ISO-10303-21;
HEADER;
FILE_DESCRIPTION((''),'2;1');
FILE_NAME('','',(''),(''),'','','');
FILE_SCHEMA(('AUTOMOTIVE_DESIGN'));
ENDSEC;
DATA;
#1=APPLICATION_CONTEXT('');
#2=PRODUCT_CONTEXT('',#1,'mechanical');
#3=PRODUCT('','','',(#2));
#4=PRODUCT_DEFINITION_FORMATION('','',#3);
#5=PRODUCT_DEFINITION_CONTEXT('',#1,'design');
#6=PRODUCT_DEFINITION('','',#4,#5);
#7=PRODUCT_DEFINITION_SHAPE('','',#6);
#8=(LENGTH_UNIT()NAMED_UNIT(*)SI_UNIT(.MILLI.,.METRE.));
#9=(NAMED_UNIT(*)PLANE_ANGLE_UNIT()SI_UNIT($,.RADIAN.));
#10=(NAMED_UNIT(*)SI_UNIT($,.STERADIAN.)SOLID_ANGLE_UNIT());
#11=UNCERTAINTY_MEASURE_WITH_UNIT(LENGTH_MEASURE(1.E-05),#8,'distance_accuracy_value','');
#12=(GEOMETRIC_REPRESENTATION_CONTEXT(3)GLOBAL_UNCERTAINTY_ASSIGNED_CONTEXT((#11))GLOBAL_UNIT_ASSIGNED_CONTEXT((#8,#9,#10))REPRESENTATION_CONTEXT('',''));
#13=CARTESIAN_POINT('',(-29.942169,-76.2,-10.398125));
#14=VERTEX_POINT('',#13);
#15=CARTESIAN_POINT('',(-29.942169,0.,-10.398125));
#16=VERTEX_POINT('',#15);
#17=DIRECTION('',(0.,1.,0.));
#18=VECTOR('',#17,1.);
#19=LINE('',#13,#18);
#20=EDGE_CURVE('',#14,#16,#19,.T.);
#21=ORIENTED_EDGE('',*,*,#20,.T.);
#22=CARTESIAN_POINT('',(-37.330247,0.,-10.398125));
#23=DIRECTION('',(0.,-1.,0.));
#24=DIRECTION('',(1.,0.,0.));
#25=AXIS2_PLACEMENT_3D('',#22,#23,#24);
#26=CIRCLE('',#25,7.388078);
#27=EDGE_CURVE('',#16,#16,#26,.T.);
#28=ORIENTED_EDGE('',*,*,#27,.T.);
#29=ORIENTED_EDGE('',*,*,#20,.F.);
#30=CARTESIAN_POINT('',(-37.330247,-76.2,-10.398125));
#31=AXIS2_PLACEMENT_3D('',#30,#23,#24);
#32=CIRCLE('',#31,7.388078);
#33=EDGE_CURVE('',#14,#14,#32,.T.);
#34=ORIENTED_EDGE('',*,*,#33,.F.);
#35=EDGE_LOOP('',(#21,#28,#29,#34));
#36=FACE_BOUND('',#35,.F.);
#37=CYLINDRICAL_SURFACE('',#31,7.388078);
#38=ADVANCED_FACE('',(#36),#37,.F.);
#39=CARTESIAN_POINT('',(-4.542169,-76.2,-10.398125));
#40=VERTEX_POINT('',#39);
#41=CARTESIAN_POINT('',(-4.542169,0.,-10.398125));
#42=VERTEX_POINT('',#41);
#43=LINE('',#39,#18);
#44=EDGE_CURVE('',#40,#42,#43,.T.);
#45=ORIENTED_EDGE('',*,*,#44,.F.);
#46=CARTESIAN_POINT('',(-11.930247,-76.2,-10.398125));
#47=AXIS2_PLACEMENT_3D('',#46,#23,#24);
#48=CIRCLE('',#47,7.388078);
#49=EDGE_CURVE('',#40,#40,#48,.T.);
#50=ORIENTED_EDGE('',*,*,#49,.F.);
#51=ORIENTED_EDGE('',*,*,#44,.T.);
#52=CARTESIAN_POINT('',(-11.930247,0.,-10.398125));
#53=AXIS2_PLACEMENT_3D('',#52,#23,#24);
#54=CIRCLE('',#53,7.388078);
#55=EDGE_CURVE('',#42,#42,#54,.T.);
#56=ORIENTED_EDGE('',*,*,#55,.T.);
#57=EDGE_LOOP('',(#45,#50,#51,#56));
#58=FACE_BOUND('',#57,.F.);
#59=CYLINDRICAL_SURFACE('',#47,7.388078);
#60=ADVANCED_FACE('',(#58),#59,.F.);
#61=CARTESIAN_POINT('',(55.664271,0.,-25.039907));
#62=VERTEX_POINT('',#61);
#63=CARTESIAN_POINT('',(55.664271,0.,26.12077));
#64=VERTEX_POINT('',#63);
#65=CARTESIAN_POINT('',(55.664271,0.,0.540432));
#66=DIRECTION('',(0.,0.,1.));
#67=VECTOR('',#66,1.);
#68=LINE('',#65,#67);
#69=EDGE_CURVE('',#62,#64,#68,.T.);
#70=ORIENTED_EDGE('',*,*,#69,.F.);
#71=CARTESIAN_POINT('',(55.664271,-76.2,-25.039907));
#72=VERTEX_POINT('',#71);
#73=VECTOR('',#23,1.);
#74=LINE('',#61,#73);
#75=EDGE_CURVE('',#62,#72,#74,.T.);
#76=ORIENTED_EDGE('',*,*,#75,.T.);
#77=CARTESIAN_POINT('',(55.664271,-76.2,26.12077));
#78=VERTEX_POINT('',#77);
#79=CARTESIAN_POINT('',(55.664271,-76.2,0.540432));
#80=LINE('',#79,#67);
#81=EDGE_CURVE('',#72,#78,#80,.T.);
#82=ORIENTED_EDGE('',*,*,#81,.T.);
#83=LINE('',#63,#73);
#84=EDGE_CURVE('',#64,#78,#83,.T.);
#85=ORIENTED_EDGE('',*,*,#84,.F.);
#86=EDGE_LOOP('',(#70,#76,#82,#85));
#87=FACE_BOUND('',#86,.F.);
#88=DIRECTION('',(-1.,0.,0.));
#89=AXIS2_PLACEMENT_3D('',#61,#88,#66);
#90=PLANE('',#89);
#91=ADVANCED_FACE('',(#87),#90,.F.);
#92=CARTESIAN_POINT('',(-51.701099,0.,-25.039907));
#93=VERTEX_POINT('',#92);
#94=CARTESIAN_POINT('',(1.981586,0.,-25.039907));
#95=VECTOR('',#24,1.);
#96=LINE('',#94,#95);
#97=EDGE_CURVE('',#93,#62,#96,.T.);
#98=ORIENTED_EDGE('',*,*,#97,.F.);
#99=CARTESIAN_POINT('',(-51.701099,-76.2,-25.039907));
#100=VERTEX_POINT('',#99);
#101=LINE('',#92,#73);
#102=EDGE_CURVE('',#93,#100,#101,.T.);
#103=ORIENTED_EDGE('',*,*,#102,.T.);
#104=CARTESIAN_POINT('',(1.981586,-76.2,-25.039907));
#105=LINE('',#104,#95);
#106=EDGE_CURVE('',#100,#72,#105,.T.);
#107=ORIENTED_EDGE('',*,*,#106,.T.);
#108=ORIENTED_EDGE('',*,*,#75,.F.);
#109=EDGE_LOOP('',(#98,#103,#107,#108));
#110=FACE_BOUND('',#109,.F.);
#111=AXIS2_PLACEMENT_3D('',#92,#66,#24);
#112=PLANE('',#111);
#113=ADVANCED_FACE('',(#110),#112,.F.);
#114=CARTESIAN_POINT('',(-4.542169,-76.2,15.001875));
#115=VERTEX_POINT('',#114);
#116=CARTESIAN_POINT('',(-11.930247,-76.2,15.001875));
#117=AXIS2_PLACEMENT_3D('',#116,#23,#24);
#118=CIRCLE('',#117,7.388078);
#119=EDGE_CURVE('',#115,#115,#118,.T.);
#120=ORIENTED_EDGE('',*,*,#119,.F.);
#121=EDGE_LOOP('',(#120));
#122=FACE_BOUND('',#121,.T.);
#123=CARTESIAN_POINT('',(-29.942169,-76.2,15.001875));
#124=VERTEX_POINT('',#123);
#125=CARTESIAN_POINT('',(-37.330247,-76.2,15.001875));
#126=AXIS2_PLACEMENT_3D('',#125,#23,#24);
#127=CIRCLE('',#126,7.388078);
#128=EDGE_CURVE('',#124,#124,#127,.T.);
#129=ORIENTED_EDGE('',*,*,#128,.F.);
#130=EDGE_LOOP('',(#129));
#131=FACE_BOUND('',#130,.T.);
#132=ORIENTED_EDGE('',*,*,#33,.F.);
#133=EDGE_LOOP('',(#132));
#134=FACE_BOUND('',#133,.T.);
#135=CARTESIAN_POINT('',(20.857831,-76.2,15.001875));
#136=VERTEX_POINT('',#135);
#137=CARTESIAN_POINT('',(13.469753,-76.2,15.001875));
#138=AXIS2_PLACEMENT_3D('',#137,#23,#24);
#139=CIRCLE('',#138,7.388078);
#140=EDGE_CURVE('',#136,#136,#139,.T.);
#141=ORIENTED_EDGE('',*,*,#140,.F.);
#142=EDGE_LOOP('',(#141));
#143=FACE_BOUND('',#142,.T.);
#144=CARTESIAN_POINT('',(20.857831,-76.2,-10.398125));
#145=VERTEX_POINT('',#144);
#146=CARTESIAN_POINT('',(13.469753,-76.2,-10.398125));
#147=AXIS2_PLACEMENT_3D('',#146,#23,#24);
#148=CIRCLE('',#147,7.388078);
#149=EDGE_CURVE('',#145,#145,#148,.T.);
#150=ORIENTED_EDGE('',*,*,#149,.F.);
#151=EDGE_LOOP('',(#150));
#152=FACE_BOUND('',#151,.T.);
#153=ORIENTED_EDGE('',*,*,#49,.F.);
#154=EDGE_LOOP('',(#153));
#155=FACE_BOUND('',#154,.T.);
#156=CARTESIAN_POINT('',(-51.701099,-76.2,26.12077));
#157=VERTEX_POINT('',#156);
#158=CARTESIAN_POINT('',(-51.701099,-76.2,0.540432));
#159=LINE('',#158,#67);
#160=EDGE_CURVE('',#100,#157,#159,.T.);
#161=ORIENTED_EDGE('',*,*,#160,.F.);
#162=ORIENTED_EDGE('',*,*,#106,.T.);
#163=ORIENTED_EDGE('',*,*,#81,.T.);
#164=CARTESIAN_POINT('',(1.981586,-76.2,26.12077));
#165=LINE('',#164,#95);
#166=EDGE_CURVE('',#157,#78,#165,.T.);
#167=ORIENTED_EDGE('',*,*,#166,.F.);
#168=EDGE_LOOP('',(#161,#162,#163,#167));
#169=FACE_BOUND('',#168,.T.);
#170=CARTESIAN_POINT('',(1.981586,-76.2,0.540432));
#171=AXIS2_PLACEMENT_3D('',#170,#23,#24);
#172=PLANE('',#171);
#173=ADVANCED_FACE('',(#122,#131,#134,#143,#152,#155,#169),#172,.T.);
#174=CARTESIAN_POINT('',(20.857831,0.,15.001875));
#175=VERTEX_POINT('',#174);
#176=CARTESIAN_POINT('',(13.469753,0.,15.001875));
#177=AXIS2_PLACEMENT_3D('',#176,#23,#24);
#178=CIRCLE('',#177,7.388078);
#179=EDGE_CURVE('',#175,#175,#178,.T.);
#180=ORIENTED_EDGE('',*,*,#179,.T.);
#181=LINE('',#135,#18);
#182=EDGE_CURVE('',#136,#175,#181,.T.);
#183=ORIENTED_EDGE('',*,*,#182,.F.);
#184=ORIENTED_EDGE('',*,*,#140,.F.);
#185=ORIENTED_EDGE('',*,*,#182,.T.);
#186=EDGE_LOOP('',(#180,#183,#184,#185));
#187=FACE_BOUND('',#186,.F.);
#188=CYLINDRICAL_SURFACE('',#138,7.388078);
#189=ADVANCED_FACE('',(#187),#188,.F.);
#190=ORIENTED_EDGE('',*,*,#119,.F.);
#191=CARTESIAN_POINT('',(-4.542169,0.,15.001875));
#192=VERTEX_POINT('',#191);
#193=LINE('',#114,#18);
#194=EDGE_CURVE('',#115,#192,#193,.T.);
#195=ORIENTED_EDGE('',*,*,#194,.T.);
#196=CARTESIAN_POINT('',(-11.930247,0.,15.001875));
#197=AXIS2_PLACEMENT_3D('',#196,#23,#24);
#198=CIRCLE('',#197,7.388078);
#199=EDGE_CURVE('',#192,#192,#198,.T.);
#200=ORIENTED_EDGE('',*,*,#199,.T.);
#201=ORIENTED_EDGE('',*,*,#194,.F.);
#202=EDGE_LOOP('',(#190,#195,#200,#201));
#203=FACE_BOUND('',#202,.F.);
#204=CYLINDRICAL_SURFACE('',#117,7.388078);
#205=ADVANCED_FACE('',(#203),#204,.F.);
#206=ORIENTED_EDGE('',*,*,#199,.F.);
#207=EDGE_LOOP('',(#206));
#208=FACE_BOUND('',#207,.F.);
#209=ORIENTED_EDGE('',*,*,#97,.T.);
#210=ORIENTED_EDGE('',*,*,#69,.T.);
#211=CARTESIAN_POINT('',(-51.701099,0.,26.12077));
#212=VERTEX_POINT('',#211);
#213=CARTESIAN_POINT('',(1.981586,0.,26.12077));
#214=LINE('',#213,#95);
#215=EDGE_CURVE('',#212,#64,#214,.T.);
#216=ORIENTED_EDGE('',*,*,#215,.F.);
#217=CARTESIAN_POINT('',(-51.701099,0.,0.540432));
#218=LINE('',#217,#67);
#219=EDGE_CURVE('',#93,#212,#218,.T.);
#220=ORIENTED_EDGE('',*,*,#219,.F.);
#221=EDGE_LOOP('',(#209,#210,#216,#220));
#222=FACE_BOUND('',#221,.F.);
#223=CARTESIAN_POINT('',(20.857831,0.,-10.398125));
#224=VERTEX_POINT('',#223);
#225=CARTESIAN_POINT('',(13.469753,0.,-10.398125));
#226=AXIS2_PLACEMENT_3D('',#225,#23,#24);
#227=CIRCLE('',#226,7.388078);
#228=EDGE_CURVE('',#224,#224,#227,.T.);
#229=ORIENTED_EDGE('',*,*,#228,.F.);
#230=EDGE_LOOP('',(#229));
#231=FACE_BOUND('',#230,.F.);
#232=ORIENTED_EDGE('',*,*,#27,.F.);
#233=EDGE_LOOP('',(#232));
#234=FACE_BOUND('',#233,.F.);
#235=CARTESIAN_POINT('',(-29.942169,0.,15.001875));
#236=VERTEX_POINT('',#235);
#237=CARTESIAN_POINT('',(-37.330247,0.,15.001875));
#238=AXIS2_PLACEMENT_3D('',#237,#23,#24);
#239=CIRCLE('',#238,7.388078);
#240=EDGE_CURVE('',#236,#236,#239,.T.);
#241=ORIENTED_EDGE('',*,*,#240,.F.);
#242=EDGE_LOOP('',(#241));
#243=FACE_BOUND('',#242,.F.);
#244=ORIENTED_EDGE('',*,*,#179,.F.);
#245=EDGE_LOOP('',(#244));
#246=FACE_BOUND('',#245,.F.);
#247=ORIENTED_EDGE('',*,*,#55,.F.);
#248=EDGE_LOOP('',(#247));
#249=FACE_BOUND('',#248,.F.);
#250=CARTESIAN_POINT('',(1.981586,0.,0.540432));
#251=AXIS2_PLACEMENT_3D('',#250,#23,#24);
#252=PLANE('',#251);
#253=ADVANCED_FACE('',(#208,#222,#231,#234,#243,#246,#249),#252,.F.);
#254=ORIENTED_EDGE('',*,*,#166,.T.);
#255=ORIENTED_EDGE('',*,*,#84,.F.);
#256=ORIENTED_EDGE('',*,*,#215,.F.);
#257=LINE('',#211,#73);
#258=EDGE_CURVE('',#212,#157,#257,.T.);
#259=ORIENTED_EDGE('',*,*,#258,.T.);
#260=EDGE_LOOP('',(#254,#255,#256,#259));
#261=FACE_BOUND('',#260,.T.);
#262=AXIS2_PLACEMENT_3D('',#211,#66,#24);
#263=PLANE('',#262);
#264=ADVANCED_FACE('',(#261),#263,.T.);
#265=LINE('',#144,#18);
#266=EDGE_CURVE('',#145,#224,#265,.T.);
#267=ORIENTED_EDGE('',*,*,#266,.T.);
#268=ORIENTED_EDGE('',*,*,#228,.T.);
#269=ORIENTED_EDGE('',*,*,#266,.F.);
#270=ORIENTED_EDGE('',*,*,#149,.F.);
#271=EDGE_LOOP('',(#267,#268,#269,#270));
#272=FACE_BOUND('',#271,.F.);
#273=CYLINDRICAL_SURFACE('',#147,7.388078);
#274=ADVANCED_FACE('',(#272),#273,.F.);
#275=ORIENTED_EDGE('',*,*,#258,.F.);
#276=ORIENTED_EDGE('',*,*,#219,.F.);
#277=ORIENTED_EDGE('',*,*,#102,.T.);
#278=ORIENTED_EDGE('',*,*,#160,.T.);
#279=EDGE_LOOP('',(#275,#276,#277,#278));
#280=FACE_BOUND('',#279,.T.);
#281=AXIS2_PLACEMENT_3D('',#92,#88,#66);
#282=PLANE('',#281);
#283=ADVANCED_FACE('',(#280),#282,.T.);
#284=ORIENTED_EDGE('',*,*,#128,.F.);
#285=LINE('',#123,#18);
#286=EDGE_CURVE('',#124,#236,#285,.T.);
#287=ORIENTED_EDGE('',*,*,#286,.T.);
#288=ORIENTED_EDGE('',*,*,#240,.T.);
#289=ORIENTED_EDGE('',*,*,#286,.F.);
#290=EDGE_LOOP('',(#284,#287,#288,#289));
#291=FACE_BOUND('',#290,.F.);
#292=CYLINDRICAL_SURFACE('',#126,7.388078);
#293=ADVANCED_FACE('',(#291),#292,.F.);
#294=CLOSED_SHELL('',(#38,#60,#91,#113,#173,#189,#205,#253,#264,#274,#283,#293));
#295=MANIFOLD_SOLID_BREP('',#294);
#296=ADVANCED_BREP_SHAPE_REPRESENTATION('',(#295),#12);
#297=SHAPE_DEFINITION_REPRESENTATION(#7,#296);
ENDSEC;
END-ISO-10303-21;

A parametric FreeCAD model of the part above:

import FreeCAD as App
import Part
import Sketcher

V = App.Vector
Q = App.Units.Quantity

doc = App.newDocument("Part")
body = doc.addObject("PartDesign::Body", "Body")

# Sketch on XZ plane
sketch1 = body.newObject("Sketcher::SketchObject", "Sketch")
sketch1.AttachmentSupport = (doc.getObject("XZ_Plane"), [""])
sketch1.MapMode = "FlatFace"
sketch1.addGeometry(Part.LineSegment(V(-52, 26, 0), V(-52, -25, 0)), False)
sketch1.addGeometry(Part.LineSegment(V(-52, -25, 0), V(56, -25, 0)), False)
sketch1.addGeometry(Part.LineSegment(V(56, -25, 0), V(56, 26, 0)), False)
sketch1.addGeometry(Part.LineSegment(V(56, 26, 0), V(-52, 26, 0)), False)
sketch1.addConstraint(Sketcher.Constraint("Coincident", 0, 2, 1, 1))
sketch1.addConstraint(Sketcher.Constraint("Coincident", 1, 2, 2, 1))
sketch1.addConstraint(Sketcher.Constraint("Coincident", 2, 2, 3, 1))
sketch1.addConstraint(Sketcher.Constraint("Coincident", 3, 2, 0, 1))
sketch1.addConstraint(Sketcher.Constraint("Vertical", 0))
sketch1.addConstraint(Sketcher.Constraint("Horizontal", 1))
sketch1.addConstraint(Sketcher.Constraint("Vertical", 2))
sketch1.addConstraint(Sketcher.Constraint("Horizontal", 3))
sketch1.addConstraint(Sketcher.Constraint("DistanceY", 0, 2, 0, 1, Q("2.0141999 in")))
sketch1.addConstraint(Sketcher.Constraint("DistanceX", 1, 1, 1, 2, Q("107.36537 mm")))
sketch1.addConstraint(Sketcher.Constraint("DistanceX", 0, 2, -1, 1, Q("51.701099 mm")))
sketch1.addConstraint(Sketcher.Constraint("DistanceY", -1, 1, 2, 2, Q("26.12077 mm")))
pad1 = body.newObject("PartDesign::Pad", "Pad")
pad1.Profile = sketch1
pad1.Length = Q("3 in")

# Sketch on XZ plane
sketch2 = body.newObject("Sketcher::SketchObject", "Sketch001")
sketch2.AttachmentSupport = (doc.getObject("XZ_Plane"), [""])
sketch2.MapMode = "FlatFace"
sketch2.AttachmentOffset = App.Placement(V(0, 0, 3 * 25.4), App.Rotation())
sketch2.addGeometry(Part.Circle(V(-37, 15, 0), V(0, 0, 1), 7), False)
sketch2.addGeometry(Part.Circle(V(-37, -10, 0), V(0, 0, 1), 7), False)
sketch2.addGeometry(Part.Circle(V(-12, 15, 0), V(0, 0, 1), 7), False)
sketch2.addGeometry(Part.Circle(V(-12, -10, 0), V(0, 0, 1), 7), False)
sketch2.addGeometry(Part.Circle(V(13, 15, 0), V(0, 0, 1), 7), False)
sketch2.addGeometry(Part.Circle(V(13, -10, 0), V(0, 0, 1), 7), False)
sketch2.addConstraint(Sketcher.Constraint("Equal", 0, 1))
sketch2.addConstraint(Sketcher.Constraint("Equal", 1, 2))
sketch2.addConstraint(Sketcher.Constraint("Equal", 2, 3))
sketch2.addConstraint(Sketcher.Constraint("Equal", 3, 4))
sketch2.addConstraint(Sketcher.Constraint("Equal", 4, 5))
sketch2.addConstraint(Sketcher.Constraint("Horizontal", 0, 3, 2, 3))
sketch2.addConstraint(Sketcher.Constraint("Horizontal", 1, 3, 3, 3))
sketch2.addConstraint(Sketcher.Constraint("Horizontal", 2, 3, 4, 3))
sketch2.addConstraint(Sketcher.Constraint("Horizontal", 3, 3, 5, 3))
sketch2.addConstraint(Sketcher.Constraint("Vertical", 0, 3, 1, 3))
sketch2.addConstraint(Sketcher.Constraint("Vertical", 2, 3, 3, 3))
sketch2.addConstraint(Sketcher.Constraint("Vertical", 4, 3, 5, 3))
sketch2.addConstraint(Sketcher.Constraint("DistanceY", 1, 3, 0, 3, Q("1 in")))
sketch2.addConstraint(Sketcher.Constraint("DistanceX", 0, 3, 2, 3, Q("1 in")))
sketch2.addConstraint(Sketcher.Constraint("DistanceX", 2, 3, 4, 3, Q("1 in")))
sketch2.addConstraint(Sketcher.Constraint("Diameter", 0, Q("14.776156 mm")))
sketch2.addConstraint(Sketcher.Constraint("DistanceX", 0, 3, -1, 1, Q("37.330247 mm")))
sketch2.addConstraint(Sketcher.Constraint("DistanceY", -1, 1, 0, 3, Q("15.001875 mm")))
pocket1 = body.newObject("PartDesign::Pocket", "Pocket")
pocket1.Profile = sketch2
pocket1.Length = Q("3.31 in")

doc.recompute()
